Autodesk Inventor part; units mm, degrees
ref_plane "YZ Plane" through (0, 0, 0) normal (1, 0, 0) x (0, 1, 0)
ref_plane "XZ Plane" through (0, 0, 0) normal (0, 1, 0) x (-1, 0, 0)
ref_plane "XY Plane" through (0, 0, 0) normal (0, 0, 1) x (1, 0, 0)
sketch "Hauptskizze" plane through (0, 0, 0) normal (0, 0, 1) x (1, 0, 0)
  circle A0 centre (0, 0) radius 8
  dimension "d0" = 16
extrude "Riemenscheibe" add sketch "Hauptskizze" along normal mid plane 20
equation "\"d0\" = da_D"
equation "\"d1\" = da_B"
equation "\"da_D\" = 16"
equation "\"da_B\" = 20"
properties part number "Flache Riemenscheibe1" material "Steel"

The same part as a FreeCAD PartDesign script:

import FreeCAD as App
import Part
import Sketcher

V = App.Vector
Q = App.Units.Quantity

doc = App.newDocument("Part")
body = doc.addObject("PartDesign::Body", "Body")

# Sketch on XY plane
sketch1 = body.newObject("Sketcher::SketchObject", "Sketch")
sketch1.AttachmentSupport = (doc.getObject("XY_Plane"), [""])
sketch1.MapMode = "FlatFace"
sketch1.addGeometry(Part.Circle(V(0, 0, 0), V(0, 0, 1), 8), False)
sketch1.addConstraint(Sketcher.Constraint("Coincident", 0, 3, -1, 1))
sketch1.addConstraint(Sketcher.Constraint("Diameter", 0, Q("16 mm")))
pad1 = body.newObject("PartDesign::Pad", "Pad")
pad1.Profile = sketch1
pad1.Length = 20
pad1.Midplane = True

doc.recompute()
